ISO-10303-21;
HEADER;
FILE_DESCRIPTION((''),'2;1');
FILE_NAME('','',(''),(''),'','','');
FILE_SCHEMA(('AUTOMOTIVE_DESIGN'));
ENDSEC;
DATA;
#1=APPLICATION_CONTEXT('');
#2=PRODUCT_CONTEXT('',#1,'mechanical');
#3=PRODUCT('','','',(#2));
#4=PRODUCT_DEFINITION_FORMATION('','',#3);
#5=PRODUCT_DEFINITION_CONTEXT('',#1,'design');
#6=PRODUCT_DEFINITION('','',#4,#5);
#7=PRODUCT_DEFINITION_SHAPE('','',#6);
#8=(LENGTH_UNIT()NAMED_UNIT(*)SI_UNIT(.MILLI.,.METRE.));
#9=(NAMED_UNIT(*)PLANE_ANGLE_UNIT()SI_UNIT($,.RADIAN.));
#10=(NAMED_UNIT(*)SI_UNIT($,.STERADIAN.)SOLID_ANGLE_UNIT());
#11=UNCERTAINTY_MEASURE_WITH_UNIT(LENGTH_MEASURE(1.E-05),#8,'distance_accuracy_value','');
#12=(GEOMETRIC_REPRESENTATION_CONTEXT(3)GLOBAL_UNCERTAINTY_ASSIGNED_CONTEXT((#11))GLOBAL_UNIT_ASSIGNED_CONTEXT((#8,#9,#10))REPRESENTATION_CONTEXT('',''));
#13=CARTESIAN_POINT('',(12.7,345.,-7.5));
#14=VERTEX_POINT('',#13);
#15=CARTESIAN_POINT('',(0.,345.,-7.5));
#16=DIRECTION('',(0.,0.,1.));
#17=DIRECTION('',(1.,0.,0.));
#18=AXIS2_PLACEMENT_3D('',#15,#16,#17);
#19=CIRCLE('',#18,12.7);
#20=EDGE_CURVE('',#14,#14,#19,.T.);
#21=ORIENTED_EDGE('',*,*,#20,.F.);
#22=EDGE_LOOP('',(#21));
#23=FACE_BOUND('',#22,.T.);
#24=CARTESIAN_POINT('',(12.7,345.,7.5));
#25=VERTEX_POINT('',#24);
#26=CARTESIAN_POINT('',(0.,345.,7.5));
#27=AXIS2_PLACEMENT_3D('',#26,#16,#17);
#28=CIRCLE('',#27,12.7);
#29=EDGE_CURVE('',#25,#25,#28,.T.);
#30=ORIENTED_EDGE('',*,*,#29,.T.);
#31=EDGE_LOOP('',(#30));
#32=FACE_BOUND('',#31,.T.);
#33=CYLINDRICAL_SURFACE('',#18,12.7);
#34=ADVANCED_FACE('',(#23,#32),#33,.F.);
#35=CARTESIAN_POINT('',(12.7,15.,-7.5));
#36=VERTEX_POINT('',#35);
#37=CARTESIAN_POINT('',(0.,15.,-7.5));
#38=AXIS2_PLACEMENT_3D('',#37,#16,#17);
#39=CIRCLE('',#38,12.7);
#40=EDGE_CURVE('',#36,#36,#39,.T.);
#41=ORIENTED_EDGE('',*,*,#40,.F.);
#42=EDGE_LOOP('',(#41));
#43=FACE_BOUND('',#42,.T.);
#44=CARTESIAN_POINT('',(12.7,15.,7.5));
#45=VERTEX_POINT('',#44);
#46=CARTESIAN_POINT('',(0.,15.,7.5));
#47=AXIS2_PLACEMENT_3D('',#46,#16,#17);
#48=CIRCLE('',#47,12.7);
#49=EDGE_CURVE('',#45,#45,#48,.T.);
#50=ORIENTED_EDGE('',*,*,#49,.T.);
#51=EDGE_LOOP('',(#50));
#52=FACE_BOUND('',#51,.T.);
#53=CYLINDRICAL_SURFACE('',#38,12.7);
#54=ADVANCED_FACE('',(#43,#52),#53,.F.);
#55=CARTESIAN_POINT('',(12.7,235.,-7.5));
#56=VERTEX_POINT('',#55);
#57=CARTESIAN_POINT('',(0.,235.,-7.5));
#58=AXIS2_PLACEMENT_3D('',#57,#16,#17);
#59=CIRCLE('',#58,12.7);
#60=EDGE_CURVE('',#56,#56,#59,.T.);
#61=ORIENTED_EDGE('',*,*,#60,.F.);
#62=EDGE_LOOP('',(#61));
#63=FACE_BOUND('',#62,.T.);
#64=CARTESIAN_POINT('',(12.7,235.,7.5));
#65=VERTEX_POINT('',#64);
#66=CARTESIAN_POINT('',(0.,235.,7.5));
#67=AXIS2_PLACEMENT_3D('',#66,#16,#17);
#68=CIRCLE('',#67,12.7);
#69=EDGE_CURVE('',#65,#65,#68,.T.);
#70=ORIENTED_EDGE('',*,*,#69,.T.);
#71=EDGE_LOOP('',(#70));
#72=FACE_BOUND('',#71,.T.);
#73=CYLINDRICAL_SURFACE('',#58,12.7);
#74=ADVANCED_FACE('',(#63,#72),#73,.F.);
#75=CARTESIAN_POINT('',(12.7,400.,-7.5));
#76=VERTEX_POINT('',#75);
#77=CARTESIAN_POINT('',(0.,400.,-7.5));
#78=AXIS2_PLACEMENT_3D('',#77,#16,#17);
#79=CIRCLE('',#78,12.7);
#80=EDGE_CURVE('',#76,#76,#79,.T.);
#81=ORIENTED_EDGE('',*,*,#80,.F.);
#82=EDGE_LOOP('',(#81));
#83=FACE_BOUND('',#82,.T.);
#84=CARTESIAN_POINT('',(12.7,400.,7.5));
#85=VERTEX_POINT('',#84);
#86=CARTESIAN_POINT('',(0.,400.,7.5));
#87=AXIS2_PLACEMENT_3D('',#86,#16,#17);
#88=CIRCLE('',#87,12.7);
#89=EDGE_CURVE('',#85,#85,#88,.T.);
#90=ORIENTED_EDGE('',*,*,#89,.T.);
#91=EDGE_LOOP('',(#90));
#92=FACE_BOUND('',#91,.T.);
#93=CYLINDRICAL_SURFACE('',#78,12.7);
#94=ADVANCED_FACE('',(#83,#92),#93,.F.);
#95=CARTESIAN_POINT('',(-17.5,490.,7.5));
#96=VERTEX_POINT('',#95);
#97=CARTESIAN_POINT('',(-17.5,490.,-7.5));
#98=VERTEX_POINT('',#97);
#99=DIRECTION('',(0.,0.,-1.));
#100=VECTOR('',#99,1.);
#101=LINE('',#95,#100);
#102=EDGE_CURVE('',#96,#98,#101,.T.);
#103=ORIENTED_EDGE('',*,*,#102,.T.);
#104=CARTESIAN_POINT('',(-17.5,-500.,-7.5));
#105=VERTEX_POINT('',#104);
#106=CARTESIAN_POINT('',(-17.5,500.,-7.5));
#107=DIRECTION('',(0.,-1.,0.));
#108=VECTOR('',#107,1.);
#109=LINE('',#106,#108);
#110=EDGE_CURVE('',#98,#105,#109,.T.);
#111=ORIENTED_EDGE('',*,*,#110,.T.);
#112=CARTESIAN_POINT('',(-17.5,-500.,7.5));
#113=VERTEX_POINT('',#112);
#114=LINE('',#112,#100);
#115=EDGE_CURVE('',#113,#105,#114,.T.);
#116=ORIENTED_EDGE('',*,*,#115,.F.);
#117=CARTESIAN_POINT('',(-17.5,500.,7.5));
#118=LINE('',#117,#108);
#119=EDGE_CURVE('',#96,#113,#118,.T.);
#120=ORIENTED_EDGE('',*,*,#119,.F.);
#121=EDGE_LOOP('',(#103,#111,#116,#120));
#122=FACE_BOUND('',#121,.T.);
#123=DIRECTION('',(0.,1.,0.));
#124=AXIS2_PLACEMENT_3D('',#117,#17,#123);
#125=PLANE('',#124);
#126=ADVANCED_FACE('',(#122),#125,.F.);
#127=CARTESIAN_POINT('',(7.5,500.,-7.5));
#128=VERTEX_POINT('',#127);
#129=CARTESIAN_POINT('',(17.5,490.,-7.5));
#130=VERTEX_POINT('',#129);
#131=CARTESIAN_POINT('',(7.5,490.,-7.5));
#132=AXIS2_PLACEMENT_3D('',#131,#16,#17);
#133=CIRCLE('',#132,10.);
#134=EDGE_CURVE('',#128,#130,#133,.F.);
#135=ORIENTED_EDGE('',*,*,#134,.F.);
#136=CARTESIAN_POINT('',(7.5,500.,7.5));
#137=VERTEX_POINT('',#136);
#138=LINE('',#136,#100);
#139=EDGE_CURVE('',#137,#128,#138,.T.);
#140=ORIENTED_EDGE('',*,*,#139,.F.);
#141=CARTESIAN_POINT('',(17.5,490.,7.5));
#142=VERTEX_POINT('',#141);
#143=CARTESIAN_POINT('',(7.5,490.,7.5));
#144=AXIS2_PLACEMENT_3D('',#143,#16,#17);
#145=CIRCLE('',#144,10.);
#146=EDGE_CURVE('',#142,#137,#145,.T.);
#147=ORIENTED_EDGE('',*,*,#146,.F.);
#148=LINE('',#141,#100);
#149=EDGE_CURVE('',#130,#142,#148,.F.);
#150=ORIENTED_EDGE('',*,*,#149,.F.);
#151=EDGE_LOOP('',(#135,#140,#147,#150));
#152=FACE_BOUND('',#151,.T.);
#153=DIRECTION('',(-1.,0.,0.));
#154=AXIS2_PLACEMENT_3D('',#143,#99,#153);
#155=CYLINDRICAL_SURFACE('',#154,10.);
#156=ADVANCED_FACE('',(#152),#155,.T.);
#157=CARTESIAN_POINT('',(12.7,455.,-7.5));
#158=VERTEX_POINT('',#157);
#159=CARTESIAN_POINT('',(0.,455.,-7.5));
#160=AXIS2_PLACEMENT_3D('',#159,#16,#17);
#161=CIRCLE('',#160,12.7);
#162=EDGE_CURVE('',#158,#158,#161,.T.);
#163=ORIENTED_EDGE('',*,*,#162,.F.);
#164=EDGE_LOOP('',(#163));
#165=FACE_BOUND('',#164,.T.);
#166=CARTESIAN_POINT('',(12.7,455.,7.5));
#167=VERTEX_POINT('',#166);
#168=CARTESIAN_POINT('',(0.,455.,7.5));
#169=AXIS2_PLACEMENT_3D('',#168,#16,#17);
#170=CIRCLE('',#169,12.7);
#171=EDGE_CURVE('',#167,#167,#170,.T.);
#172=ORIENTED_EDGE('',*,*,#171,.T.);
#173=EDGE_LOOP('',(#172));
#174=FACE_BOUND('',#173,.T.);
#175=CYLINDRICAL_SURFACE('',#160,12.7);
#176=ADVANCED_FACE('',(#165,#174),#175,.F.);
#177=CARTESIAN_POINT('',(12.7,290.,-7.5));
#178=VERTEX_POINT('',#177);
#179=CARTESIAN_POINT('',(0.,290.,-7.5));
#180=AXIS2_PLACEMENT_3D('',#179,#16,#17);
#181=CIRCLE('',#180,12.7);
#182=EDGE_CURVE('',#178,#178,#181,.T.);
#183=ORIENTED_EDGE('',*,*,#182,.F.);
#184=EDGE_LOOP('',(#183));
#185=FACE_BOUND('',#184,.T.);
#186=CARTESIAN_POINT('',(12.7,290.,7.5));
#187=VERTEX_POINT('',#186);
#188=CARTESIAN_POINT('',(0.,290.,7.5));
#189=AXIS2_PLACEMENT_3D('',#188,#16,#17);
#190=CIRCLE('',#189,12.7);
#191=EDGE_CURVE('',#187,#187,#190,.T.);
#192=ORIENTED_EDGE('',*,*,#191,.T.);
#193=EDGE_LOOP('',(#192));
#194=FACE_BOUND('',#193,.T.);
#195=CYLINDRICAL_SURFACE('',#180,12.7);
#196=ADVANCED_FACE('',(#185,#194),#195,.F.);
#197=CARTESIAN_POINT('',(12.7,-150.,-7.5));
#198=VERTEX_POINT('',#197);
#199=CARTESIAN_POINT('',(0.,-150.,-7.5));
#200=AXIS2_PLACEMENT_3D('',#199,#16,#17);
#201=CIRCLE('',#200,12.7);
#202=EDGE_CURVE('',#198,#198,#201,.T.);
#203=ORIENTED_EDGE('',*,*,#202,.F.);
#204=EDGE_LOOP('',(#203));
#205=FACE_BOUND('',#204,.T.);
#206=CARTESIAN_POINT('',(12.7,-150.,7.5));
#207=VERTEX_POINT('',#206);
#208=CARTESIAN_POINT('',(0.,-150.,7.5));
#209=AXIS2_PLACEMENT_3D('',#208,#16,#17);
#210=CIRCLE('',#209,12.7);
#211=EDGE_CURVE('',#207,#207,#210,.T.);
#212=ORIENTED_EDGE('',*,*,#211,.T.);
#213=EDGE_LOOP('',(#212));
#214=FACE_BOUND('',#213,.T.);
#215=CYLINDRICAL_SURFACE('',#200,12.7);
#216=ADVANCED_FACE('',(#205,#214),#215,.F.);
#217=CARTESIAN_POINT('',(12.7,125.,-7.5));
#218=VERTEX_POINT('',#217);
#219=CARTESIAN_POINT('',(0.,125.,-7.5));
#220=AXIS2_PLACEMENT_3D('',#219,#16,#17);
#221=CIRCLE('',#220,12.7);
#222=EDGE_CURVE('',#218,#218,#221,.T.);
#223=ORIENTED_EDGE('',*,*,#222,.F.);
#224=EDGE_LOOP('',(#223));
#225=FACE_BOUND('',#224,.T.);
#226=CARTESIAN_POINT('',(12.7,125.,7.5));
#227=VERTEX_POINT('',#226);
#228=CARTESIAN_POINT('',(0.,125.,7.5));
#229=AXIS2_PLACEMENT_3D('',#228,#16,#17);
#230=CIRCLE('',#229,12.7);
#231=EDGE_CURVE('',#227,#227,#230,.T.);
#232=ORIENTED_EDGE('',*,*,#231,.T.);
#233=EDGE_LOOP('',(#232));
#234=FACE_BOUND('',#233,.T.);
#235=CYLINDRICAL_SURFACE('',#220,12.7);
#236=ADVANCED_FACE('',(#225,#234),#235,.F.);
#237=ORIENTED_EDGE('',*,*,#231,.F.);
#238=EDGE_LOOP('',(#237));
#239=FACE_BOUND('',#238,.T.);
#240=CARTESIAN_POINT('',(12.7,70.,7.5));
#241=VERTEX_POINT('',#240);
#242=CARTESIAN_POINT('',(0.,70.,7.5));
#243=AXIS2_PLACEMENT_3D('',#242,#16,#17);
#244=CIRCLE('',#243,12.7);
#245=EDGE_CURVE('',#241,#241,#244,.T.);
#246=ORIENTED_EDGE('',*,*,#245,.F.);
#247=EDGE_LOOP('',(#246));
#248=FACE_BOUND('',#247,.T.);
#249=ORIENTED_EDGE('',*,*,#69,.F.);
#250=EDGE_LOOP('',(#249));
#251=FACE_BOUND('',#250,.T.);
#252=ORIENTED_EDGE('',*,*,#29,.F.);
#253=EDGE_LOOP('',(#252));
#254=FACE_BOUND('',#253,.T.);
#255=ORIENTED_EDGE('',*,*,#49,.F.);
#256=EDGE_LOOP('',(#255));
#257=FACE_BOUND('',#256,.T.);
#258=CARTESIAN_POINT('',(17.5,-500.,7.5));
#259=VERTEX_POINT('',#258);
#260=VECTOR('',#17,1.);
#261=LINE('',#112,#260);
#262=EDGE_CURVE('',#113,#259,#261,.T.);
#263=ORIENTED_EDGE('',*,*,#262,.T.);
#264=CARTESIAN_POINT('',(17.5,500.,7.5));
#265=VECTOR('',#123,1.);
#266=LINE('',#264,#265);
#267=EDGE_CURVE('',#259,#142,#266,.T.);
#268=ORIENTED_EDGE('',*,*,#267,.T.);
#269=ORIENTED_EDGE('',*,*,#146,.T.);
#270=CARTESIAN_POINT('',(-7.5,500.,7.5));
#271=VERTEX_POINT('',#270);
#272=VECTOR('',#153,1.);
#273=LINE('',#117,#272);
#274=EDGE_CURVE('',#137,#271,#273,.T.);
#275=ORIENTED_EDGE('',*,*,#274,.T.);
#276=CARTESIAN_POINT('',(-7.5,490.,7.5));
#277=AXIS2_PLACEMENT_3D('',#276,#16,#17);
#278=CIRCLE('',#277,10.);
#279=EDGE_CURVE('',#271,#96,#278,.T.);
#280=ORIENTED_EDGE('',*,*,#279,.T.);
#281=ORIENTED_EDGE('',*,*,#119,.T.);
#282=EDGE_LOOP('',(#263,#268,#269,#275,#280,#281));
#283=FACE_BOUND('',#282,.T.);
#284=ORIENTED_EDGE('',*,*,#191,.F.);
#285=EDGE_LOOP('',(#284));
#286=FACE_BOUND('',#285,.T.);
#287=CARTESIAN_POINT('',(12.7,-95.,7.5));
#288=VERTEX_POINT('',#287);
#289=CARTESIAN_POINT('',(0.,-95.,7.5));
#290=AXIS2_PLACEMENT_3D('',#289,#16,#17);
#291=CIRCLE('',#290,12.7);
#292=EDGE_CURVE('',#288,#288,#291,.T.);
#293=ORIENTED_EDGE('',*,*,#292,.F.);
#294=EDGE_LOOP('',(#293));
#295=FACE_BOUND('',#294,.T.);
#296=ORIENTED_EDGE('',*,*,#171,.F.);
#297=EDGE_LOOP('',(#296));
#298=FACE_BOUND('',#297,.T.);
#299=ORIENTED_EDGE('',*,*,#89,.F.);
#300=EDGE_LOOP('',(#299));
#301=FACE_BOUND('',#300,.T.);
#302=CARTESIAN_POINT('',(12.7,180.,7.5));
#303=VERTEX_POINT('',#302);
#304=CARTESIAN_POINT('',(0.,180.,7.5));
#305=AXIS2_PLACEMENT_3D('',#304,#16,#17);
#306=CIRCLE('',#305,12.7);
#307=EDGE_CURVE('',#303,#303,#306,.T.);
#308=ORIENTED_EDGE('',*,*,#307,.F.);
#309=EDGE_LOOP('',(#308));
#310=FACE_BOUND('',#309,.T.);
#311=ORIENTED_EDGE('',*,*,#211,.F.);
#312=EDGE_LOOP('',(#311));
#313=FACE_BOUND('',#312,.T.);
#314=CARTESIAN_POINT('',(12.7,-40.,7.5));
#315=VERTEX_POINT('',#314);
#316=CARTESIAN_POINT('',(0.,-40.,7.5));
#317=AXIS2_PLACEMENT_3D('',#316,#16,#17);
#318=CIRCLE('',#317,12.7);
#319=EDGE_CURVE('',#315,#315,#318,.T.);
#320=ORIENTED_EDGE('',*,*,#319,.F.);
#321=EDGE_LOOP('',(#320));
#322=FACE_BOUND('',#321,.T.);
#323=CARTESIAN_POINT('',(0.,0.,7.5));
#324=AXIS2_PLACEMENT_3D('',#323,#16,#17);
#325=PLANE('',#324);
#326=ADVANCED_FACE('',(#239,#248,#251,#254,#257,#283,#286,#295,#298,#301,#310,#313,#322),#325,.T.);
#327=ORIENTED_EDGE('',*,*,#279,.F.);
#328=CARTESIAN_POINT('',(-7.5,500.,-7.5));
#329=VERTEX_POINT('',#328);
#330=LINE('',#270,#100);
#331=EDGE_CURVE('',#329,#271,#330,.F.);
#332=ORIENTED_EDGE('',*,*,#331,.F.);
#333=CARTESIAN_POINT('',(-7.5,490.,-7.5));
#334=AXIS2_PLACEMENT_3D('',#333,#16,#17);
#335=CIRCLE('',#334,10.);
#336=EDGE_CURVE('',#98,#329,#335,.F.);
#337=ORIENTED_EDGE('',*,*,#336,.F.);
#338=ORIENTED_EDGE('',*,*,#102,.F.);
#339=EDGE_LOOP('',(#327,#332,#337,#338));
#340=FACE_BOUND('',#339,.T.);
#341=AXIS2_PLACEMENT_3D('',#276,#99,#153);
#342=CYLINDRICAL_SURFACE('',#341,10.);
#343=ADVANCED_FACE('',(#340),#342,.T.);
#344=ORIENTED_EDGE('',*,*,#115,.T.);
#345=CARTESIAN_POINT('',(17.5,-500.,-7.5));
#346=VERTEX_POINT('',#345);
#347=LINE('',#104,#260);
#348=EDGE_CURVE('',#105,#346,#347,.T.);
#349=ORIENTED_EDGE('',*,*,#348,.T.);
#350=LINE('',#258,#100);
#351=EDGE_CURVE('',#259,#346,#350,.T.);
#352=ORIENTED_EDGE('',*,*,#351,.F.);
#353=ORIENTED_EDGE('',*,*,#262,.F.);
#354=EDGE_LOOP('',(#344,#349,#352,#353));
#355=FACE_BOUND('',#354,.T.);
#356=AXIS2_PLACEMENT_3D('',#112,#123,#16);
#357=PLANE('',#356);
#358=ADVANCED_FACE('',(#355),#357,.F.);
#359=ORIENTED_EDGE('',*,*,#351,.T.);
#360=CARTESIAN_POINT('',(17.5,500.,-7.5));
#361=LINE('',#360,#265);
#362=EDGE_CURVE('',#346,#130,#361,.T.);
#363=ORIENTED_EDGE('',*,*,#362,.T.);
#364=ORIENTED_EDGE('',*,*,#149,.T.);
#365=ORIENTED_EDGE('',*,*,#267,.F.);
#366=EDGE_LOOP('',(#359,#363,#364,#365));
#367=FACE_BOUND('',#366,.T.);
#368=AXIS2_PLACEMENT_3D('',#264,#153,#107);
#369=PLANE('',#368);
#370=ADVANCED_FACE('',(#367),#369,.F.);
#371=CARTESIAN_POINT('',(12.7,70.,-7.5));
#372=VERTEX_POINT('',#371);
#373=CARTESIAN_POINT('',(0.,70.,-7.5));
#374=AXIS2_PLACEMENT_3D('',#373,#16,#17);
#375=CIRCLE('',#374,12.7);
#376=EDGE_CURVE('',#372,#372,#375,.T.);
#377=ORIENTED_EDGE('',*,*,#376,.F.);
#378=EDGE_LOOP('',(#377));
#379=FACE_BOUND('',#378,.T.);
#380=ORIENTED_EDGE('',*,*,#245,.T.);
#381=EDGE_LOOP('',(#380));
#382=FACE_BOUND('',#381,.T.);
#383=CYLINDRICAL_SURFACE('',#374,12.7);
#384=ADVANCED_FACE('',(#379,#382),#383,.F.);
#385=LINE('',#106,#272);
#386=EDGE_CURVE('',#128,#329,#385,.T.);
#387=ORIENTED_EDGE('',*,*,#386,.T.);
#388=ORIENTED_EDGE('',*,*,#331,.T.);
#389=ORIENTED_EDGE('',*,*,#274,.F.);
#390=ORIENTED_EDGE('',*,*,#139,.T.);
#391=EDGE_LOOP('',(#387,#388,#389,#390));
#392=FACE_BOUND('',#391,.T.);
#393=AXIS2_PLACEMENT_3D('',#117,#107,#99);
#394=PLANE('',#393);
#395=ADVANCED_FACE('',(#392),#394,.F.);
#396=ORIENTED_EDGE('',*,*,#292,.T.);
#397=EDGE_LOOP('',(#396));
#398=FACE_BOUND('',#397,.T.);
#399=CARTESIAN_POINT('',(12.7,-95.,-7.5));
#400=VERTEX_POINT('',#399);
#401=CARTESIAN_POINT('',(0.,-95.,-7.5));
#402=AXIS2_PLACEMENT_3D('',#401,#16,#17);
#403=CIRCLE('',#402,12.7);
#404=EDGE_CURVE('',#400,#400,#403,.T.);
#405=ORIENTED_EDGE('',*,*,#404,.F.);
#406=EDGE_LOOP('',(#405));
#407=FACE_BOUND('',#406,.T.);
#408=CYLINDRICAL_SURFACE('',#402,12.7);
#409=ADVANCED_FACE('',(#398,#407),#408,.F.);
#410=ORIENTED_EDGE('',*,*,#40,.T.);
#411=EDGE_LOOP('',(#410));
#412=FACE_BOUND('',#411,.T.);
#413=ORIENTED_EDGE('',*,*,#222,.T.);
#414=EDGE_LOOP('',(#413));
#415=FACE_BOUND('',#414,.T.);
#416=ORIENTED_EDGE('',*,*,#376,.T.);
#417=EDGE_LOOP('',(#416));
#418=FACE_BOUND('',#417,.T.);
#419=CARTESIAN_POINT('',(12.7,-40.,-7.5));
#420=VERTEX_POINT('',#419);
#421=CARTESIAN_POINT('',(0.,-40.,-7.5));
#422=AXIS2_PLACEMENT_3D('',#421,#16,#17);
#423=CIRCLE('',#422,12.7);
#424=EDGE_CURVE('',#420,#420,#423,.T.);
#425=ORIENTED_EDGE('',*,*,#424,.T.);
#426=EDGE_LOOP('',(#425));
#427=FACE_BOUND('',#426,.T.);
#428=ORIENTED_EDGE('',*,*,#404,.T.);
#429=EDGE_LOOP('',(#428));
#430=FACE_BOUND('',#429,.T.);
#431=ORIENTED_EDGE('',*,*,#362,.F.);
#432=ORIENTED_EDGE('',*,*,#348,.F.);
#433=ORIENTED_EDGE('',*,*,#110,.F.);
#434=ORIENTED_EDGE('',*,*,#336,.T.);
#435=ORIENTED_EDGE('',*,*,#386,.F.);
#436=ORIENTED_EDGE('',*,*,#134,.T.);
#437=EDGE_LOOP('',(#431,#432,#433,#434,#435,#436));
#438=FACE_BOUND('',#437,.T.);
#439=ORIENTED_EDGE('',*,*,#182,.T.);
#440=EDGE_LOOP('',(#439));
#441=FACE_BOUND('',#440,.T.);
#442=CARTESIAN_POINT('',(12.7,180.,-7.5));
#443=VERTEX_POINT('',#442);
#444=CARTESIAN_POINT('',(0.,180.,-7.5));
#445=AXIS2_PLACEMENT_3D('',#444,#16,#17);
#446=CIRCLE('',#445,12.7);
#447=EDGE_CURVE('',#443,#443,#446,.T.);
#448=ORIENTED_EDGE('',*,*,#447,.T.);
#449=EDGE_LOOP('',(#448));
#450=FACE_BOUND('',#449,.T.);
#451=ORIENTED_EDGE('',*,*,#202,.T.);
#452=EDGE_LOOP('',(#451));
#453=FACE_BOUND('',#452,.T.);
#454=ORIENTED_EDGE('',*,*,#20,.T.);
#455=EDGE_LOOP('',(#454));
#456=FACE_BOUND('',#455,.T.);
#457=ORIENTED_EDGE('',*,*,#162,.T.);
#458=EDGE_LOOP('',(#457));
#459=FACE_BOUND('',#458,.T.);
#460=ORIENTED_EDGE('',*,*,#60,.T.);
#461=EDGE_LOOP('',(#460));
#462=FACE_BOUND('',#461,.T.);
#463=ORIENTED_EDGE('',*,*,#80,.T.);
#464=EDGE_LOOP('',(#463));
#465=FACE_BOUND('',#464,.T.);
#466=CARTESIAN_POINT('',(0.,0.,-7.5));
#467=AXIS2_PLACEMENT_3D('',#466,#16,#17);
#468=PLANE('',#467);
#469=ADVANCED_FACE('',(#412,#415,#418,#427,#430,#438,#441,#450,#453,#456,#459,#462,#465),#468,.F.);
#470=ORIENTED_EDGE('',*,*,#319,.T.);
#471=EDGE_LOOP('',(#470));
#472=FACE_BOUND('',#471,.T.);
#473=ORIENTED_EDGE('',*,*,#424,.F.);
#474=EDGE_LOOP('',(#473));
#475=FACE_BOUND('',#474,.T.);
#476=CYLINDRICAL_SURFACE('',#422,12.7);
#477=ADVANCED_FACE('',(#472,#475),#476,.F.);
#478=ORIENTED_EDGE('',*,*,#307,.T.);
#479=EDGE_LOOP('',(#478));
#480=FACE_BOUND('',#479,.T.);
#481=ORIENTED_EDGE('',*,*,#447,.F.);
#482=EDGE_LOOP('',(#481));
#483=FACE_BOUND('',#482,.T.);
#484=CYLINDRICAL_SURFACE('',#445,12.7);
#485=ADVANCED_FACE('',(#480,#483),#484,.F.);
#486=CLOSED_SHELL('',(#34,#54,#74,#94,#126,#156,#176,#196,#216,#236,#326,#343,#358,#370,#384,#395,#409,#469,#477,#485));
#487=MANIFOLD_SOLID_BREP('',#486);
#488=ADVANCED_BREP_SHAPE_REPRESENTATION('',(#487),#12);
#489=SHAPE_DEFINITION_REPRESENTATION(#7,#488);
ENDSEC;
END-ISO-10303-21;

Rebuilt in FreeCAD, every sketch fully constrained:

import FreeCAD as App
import Part
import Sketcher
Q = App.Units.Quantity


def edges_at(feature, points):
    """Names of the edges that pass closest to the given points."""
    edges = feature.Shape.Edges
    near = lambda p: min(range(len(edges)), key=lambda i: edges[i].distToShape(Part.Vertex(*p))[0])
    return sorted({f"Edge{near(p) + 1}" for p in points})

doc = App.newDocument("Part")
body = doc.addObject("PartDesign::Body", "Body")

# Sketch on XY plane
sketch1 = body.newObject("Sketcher::SketchObject", "Sketch")
sketch1.AttachmentSupport = (doc.getObject("XY_Plane"), [""])
sketch1.MapMode = "FlatFace"
sketch1.addGeometry(Part.LineSegment(App.Vector(-18, 500, 0), App.Vector(-18, -500, 0)), False)
sketch1.addGeometry(Part.LineSegment(App.Vector(-18, -500, 0), App.Vector(18, -500, 0)), False)
sketch1.addGeometry(Part.LineSegment(App.Vector(18, -500, 0), App.Vector(18, 500, 0)), False)
sketch1.addGeometry(Part.LineSegment(App.Vector(18, 500, 0), App.Vector(-18, 500, 0)), False)
sketch1.addConstraint(Sketcher.Constraint("Coincident", 0, 2, 1, 1))
sketch1.addConstraint(Sketcher.Constraint("Coincident", 1, 2, 2, 1))
sketch1.addConstraint(Sketcher.Constraint("Coincident", 2, 2, 3, 1))
sketch1.addConstraint(Sketcher.Constraint("Coincident", 3, 2, 0, 1))
sketch1.addConstraint(Sketcher.Constraint("Vertical", 0))
sketch1.addConstraint(Sketcher.Constraint("Horizontal", 1))
sketch1.addConstraint(Sketcher.Constraint("Vertical", 2))
sketch1.addConstraint(Sketcher.Constraint("Horizontal", 3))
sketch1.addConstraint(Sketcher.Constraint("Symmetric", 0, 2, 2, 2, -1, 1))
sketch1.addConstraint(Sketcher.Constraint("DistanceX", 1, 1, 1, 2, Q("35 mm")))
sketch1.addConstraint(Sketcher.Constraint("DistanceY", 0, 2, 0, 1, Q("1000 mm")))
pad1 = body.newObject("PartDesign::Pad", "Pad")
pad1.Profile = sketch1
pad1.Length = 15
pad1.Midplane = True

# Sketch on XY plane
sketch2 = body.newObject("Sketcher::SketchObject", "Sketch001")
sketch2.AttachmentSupport = (doc.getObject("XY_Plane"), [""])
sketch2.MapMode = "FlatFace"
sketch2.addGeometry(Part.Circle(App.Vector(0, -150, 0), App.Vector(0, 0, 1), 13), False)
sketch2.addConstraint(Sketcher.Constraint("PointOnObject", 0, 3, -2))
sketch2.addConstraint(Sketcher.Constraint("Diameter", 0, Q("25.4 mm")))
sketch2.addConstraint(Sketcher.Constraint("DistanceY", 0, 3, -1, 1, Q("150 mm")))
pocket1 = body.newObject("PartDesign::Pocket", "Pocket")
pocket1.Profile = sketch2
pocket1.Length = 17
pocket1.Midplane = True
doc.recompute()

linearpattern = body.newObject("PartDesign::LinearPattern", "LinearPattern")
linearpattern.Originals = [pocket1]
linearpattern.Direction = (doc.getObject("Y_Axis"), [""])
linearpattern.Mode = "offset"
linearpattern.Offset = 55
linearpattern.Occurrences = 12
body.Tip = linearpattern
doc.recompute()

fillet = body.newObject("PartDesign::Fillet", "Fillet")
fillet.Base = (linearpattern, edges_at(linearpattern, [(-17.5, 500, 0), (17.5, 500, 0)]))
fillet.Radius = 10

doc.recompute()
